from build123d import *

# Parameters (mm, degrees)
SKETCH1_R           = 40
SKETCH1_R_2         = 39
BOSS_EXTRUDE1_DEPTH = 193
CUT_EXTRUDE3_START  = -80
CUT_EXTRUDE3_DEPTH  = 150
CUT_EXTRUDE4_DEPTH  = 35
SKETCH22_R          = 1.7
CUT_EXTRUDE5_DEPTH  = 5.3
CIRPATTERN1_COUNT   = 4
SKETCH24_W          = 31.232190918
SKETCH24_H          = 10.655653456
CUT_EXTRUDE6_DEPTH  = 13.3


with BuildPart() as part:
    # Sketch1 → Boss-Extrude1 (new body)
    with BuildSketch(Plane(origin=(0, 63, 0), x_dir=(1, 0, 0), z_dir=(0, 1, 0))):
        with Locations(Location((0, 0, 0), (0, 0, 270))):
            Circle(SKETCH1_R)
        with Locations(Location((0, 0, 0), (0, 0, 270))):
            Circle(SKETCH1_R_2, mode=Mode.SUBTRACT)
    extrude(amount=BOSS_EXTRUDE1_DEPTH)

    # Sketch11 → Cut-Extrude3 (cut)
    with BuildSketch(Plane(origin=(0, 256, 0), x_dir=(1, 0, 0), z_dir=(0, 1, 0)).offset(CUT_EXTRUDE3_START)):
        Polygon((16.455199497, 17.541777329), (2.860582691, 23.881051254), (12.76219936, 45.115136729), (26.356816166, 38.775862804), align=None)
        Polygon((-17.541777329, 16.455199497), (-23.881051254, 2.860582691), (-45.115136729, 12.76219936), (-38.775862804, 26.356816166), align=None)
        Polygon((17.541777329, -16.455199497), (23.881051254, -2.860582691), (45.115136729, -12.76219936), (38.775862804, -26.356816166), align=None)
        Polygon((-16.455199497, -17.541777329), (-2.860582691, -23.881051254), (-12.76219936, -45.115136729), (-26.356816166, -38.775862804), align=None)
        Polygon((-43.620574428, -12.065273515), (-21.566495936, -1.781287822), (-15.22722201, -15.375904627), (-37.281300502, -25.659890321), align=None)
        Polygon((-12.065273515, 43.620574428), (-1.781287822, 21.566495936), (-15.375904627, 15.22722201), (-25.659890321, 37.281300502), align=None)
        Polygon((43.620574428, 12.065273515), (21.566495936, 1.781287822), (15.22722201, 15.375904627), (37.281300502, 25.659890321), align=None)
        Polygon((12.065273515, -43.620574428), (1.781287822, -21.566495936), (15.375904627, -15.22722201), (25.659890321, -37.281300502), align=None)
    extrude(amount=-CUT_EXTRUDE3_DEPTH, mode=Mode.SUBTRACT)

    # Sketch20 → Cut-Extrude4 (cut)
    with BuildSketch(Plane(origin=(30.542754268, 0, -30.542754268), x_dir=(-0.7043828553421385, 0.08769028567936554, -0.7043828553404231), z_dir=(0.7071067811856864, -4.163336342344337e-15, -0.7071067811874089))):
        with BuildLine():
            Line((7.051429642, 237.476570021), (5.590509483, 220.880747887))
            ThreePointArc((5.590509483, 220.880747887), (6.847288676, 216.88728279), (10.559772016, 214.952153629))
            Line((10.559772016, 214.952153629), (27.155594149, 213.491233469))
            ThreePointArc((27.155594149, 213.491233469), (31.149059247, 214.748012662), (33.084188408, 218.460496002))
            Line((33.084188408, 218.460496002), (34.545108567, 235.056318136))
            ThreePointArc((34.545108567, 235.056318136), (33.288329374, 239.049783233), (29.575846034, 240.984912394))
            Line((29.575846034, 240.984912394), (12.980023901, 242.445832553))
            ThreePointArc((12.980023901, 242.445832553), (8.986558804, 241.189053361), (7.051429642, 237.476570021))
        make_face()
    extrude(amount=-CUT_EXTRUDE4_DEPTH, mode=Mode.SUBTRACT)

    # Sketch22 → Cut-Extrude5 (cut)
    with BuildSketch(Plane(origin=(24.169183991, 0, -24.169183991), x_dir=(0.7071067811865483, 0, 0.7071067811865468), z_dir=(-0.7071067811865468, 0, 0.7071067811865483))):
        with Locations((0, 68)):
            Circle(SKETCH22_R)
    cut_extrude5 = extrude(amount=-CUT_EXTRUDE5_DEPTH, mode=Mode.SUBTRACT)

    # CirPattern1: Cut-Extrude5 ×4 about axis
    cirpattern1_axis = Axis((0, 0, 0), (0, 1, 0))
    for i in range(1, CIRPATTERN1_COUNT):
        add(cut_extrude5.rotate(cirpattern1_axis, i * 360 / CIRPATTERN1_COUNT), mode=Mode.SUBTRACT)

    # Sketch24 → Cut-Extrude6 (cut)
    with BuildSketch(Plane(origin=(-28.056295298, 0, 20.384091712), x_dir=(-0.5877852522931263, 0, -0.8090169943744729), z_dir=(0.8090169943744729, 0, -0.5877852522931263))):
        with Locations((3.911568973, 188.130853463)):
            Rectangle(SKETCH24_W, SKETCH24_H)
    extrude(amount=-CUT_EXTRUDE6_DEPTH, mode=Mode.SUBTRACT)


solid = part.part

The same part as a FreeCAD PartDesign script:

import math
import FreeCAD as App
import Part
import Sketcher
Q = App.Units.Quantity


def add_polygon(sketch, points):
    """Adds a closed chain of lines whose ends are joined by coincident constraints."""
    first, n = sketch.GeometryCount, len(points)
    for a, b in zip(points, points[1:] + points[:1]):
        sketch.addGeometry(Part.LineSegment(App.Vector(*a, 0), App.Vector(*b, 0)), False)
    for i in range(n):
        sketch.addConstraint(Sketcher.Constraint("Coincident", first + i, 2, first + (i + 1) % n, 1))

doc = App.newDocument("Part")
body = doc.addObject("PartDesign::Body", "Body")

# Sketch on XZ plane
sketch1 = body.newObject("Sketcher::SketchObject", "Sketch")
sketch1.AttachmentSupport = (doc.getObject("XZ_Plane"), [""])
sketch1.MapMode = "FlatFace"
sketch1.AttachmentOffset = App.Placement(App.Vector(0, 0, -63), App.Rotation())
sketch1.addGeometry([
    Part.Circle(App.Vector(0, 0, 0), App.Vector(0, 0, 1), 40),
    Part.Circle(App.Vector(0, 0, 0), App.Vector(0, 0, 1), 39),
], False)
sketch1.addConstraint([
    Sketcher.Constraint("Coincident", 0, 3, -1, 1),
    Sketcher.Constraint("Coincident", 1, 3, -1, 1),
    Sketcher.Constraint("Diameter", 0, Q("80 mm")),
    Sketcher.Constraint("Diameter", 1, Q("78 mm")),
])
pad1 = body.newObject("PartDesign::Pad", "Pad")
pad1.Profile = sketch1
pad1.Length = 193
pad1.Reversed = True

# Sketch on XZ plane
sketch2 = body.newObject("Sketcher::SketchObject", "Sketch001")
sketch2.AttachmentSupport = (doc.getObject("XZ_Plane"), [""])
sketch2.MapMode = "FlatFace"
sketch2.AttachmentOffset = App.Placement(App.Vector(0, 0, -176), App.Rotation())
add_polygon(sketch2, [(2.860583, -23.881051), (16.455199, -17.541777), (26.356816, -38.775863), (12.762199, -45.115137)])  # lines 0-3
add_polygon(sketch2, [(-23.881051, -2.860583), (-17.541777, -16.455199), (-38.775863, -26.356816), (-45.115137, -12.762199)])  # lines 4-7
add_polygon(sketch2, [(23.881051, 2.860583), (17.541777, 16.455199), (38.775863, 26.356816), (45.115137, 12.762199)])  # lines 8-11
add_polygon(sketch2, [(-2.860583, 23.881051), (-16.455199, 17.541777), (-26.356816, 38.775863), (-12.762199, 45.115137)])  # lines 12-15
add_polygon(sketch2, [(-21.566496, 1.781288), (-43.620574, 12.065274), (-37.281301, 25.65989), (-15.227222, 15.375905)])  # lines 16-19
add_polygon(sketch2, [(-1.781288, -21.566496), (-12.065274, -43.620574), (-25.65989, -37.281301), (-15.375905, -15.227222)])  # lines 20-23
add_polygon(sketch2, [(21.566496, -1.781288), (43.620574, -12.065274), (37.281301, -25.65989), (15.227222, -15.375905)])  # lines 24-27
add_polygon(sketch2, [(1.781288, 21.566496), (12.065274, 43.620574), (25.65989, 37.281301), (15.375905, 15.227222)])  # lines 28-31
sketch2.addConstraint([
    Sketcher.Constraint("Symmetric", 4, 2, 8, 2, -1, 1),
    Sketcher.Constraint("Symmetric", 5, 2, 9, 2, -1, 1),
    Sketcher.Constraint("Symmetric", 6, 2, 10, 2, -1, 1),
    Sketcher.Constraint("Symmetric", 7, 2, 11, 2, -1, 1),
    Sketcher.Constraint("Symmetric", 0, 2, 12, 2, -1, 1),
    Sketcher.Constraint("Symmetric", 1, 2, 13, 2, -1, 1),
    Sketcher.Constraint("Symmetric", 2, 2, 14, 2, -1, 1),
    Sketcher.Constraint("Symmetric", 3, 2, 15, 2, -1, 1),
    Sketcher.Constraint("Symmetric", 16, 2, 24, 2, -1, 1),
    Sketcher.Constraint("Symmetric", 17, 2, 25, 2, -1, 1),
    Sketcher.Constraint("Symmetric", 18, 2, 26, 2, -1, 1),
    Sketcher.Constraint("Symmetric", 19, 2, 27, 2, -1, 1),
    Sketcher.Constraint("Symmetric", 20, 2, 28, 2, -1, 1),
    Sketcher.Constraint("Symmetric", 21, 2, 29, 2, -1, 1),
    Sketcher.Constraint("Symmetric", 22, 2, 30, 2, -1, 1),
    Sketcher.Constraint("Symmetric", 23, 2, 31, 2, -1, 1),
    Sketcher.Constraint("Perpendicular", 0, 1),
    Sketcher.Constraint("Perpendicular", 1, 2),
    Sketcher.Constraint("Perpendicular", 2, 3),
    Sketcher.Constraint("Parallel", 3, 4),
    Sketcher.Constraint("Perpendicular", 4, 5),
    Sketcher.Constraint("Perpendicular", 5, 6),
    Sketcher.Constraint("Perpendicular", 6, 7),
    Sketcher.Constraint("Perpendicular", 16, 17),
    Sketcher.Constraint("Perpendicular", 17, 18),
    Sketcher.Constraint("Perpendicular", 18, 19),
    Sketcher.Constraint("Parallel", 19, 20),
    Sketcher.Constraint("Perpendicular", 20, 21),
    Sketcher.Constraint("Perpendicular", 21, 22),
    Sketcher.Constraint("Perpendicular", 22, 23),
    Sketcher.Constraint("Equal", 2, 4),
    Sketcher.Constraint("Equal", 3, 5),
    Sketcher.Constraint("Equal", 14, 17),
    Sketcher.Constraint("Equal", 18, 20),
    Sketcher.Constraint("Equal", 19, 21),
    Sketcher.Constraint("Angle", 0, Q("25 deg")),
    Sketcher.Constraint("Angle", 16, Q("155 deg")),
    Sketcher.Constraint("Distance", 0, Q("15 mm")),
    Sketcher.Constraint("DistanceX", 2, 2, 0, 2, Q("3.693 mm")),
    Sketcher.Constraint("DistanceX", -1, 1, 0, 2, Q("16.455199 mm")),
    Sketcher.Constraint("DistanceY", 4, 2, -1, 1, Q("16.455199 mm")),
    Sketcher.Constraint("DistanceX", 17, 2, -1, 1, Q("37.281301 mm")),
    Sketcher.Constraint("DistanceY", 21, 2, -1, 1, Q("37.281301 mm")),
    Sketcher.Constraint("DistanceY", 3, 2, -1, 1, Q("23.881051 mm")),
    Sketcher.Constraint("DistanceX", 7, 2, -1, 1, Q("23.881051 mm")),
    Sketcher.Constraint("DistanceY", -1, 1, 17, 2, Q("25.65989 mm")),
    Sketcher.Constraint("DistanceX", 21, 2, -1, 1, Q("25.65989 mm")),
    Sketcher.Constraint("DistanceX", 18, 2, 15, 2, Q("12.366639 mm")),
])
pocket1 = body.newObject("PartDesign::Pocket", "Pocket")
pocket1.Profile = sketch2
pocket1.Length = 150
pocket1.Reversed = True

# Sketch on an angled plane
sketch3 = body.newObject("Sketcher::SketchObject", "Sketch002")
sketch3.Placement = App.Placement(App.Vector(30.542754, 0, -30.542754), App.Rotation(App.Vector(-0.704382855, 0.087690286, -0.704382855), App.Vector(0.062006396, 0.996147786, 0.062006396), App.Vector(0.707106781, 0, -0.707106781), "ZXY"))
sketch3.addGeometry([
    Part.LineSegment(App.Vector(7.05143, 237.47657, 0), App.Vector(5.590509, 220.880748, 0)),  # 0
    Part.ArcOfCircle(Part.Circle(App.Vector(11.039438, 220.401082, 0), App.Vector(0, 0, 1), 5.47), math.radians(174.969255), math.radians(264.969255)),  # 1
    Part.LineSegment(App.Vector(10.559772, 214.952153, 0), App.Vector(27.155594, 213.491233, 0)),  # 2
    Part.ArcOfCircle(Part.Circle(App.Vector(27.63526, 218.940162, 0), App.Vector(0, 0, 1), 5.47), math.radians(-95.030745), math.radians(-5.030745)),  # 3
    Part.LineSegment(App.Vector(33.084188, 218.460496, 0), App.Vector(34.545109, 235.056318, 0)),  # 4
    Part.ArcOfCircle(Part.Circle(App.Vector(29.09618, 235.535984, 0), App.Vector(0, 0, 1), 5.47), math.radians(-5.030745), math.radians(84.969255)),  # 5
    Part.LineSegment(App.Vector(29.575846, 240.984912, 0), App.Vector(12.980024, 242.445832, 0)),  # 6
    Part.ArcOfCircle(Part.Circle(App.Vector(12.500358, 236.996904, 0), App.Vector(0, 0, 1), 5.47), math.radians(84.969255), math.radians(174.969255)),  # 7
], False)
sketch3.addConstraint([
    Sketcher.Constraint("Tangent", 0, 2, 1, 1),
    Sketcher.Constraint("Tangent", 1, 2, 2, 1),
    Sketcher.Constraint("Tangent", 2, 2, 3, 1),
    Sketcher.Constraint("Tangent", 3, 2, 4, 1),
    Sketcher.Constraint("Tangent", 4, 2, 5, 1),
    Sketcher.Constraint("Tangent", 5, 2, 6, 1),
    Sketcher.Constraint("Tangent", 6, 2, 7, 1),
    Sketcher.Constraint("Tangent", 7, 2, 0, 1),
    Sketcher.Constraint("Equal", 1, 3),
    Sketcher.Constraint("Equal", 3, 5),
    Sketcher.Constraint("Equal", 5, 7),
    Sketcher.Constraint("Perpendicular", 0, 2),
    Sketcher.Constraint("Perpendicular", 2, 4),
    Sketcher.Constraint("Perpendicular", 4, 6),
    Sketcher.Constraint("Equal", 0, 2),
    Sketcher.Constraint("Radius", 1, Q("5.47 mm")),
    Sketcher.Constraint("Distance", 0, Q("16.66 mm")),
    Sketcher.Constraint("DistanceY", 1, 3, 5, 3, Q("15.134902 mm")),
    Sketcher.Constraint("DistanceY", -1, 1, 1, 3, Q("220.401082 mm")),
    Sketcher.Constraint("DistanceX", -1, 1, 3, 3, Q("27.63526 mm")),
])
pocket2 = body.newObject("PartDesign::Pocket", "Pocket001")
pocket2.Profile = sketch3
pocket2.Length = 35

# Sketch on an angled plane
sketch4 = body.newObject("Sketcher::SketchObject", "Sketch003")
sketch4.Placement = App.Placement(App.Vector(24.169184, 0, -24.169184), App.Rotation(App.Vector(0.707106781, 0, 0.707106781), App.Vector(0, 0.999999999, 0), App.Vector(-0.707106781, 0, 0.707106781), "ZXY"))
sketch4.addGeometry(Part.Circle(App.Vector(0, 68, 0), App.Vector(0, 0, 1), 1.7), False)
sketch4.addConstraint([
    Sketcher.Constraint("PointOnObject", 0, 3, -2),
    Sketcher.Constraint("Diameter", 0, Q("3.4 mm")),
    Sketcher.Constraint("DistanceY", -1, 1, 0, 3, Q("68 mm")),
])
pocket3 = body.newObject("PartDesign::Pocket", "Pocket002")
pocket3.Profile = sketch4
pocket3.Length = 5.3
doc.recompute()

polarpattern = body.newObject("PartDesign::PolarPattern", "PolarPattern")
polarpattern.Originals = [pocket3]
polarpattern.Axis = (doc.getObject("Y_Axis"), [""])
polarpattern.Angle = 360
polarpattern.Occurrences = 4
body.Tip = polarpattern

# Sketch on an angled plane
sketch5 = body.newObject("Sketcher::SketchObject", "Sketch004")
sketch5.Placement = App.Placement(App.Vector(-28.056295, 0, 20.384092), App.Rotation(App.Vector(-0.587785252, 0, -0.809016994), App.Vector(0, 0.999999999, 0), App.Vector(0.809016994, 0, -0.587785252), "ZXY"))
add_polygon(sketch5, [(-11.704526, 193.45868), (-11.704526, 182.803026), (19.527664, 182.803026), (19.527664, 193.45868)])  # lines 0-3
sketch5.addConstraint([
    Sketcher.Constraint("Vertical", 0),
    Sketcher.Constraint("Horizontal", 1),
    Sketcher.Constraint("Vertical", 2),
    Sketcher.Constraint("Horizontal", 3),
    Sketcher.Constraint("DistanceX", 1, 1, 1, 2, Q("31.232191 mm")),
    Sketcher.Constraint("DistanceY", 0, 2, 0, 1, Q("10.655653 mm")),
    Sketcher.Constraint("DistanceY", -1, 1, 2, 2, Q("193.45868 mm")),
    Sketcher.Constraint("DistanceX", 0, 2, -1, 1, Q("11.704526 mm")),
])
pocket4 = body.newObject("PartDesign::Pocket", "Pocket003")
pocket4.Profile = sketch5
pocket4.Length = 13.3

doc.recompute()
